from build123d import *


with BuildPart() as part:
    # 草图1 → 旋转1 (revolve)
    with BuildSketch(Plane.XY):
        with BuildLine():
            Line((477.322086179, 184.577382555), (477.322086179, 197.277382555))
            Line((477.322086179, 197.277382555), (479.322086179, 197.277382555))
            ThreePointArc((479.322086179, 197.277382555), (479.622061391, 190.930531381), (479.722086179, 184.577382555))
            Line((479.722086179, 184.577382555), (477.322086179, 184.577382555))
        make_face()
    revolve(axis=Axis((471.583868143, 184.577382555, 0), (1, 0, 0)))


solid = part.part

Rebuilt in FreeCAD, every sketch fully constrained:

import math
import FreeCAD as App
import Part
import Sketcher

V = App.Vector
Q = App.Units.Quantity

doc = App.newDocument("Part")
body = doc.addObject("PartDesign::Body", "Body")

sketch1 = body.newObject("Sketcher::SketchObject", "Sketch")
sketch1.AttachmentSupport = (doc.getObject("XY_Plane"), [""])
sketch1.MapMode = "FlatFace"
sketch1.addGeometry([
    Part.LineSegment(V(477.3, 197.3, 0), V(477.3, 184.6, 0)),
    Part.LineSegment(V(477.3, 184.6, 0), V(479.7, 184.6, 0)),
    Part.ArcOfCircle(Part.Circle(V(277.9, 184.6, 0), V(0, 0, 1), 201.8), math.radians(0), math.radians(3.61)),
    Part.LineSegment(V(479.3, 197.3, 0), V(477.3, 197.3, 0)),
], False)
sketch1.addGeometry(Part.LineSegment(V(277.9, 184.6, 0), V(479.7, 184.6, 0)), True)
sketch1.addConstraint([
    Sketcher.Constraint("Coincident", 0, 2, 1, 1),
    Sketcher.Constraint("Coincident", 1, 2, 2, 1),
    Sketcher.Constraint("Coincident", 2, 2, 3, 1),
    Sketcher.Constraint("Coincident", 3, 2, 0, 1),
    Sketcher.Constraint("Vertical", 0),
    Sketcher.Constraint("Horizontal", 1),
    Sketcher.Constraint("Horizontal", 3),
    Sketcher.Constraint("Horizontal", 4),
    Sketcher.Constraint("Coincident", 4, 1, 2, 3),
    Sketcher.Constraint("Coincident", 4, 2, 1, 2),
    Sketcher.Constraint("DistanceX", 3, 2, 3, 1, Q("2 mm")),
    Sketcher.Constraint("DistanceX", 1, 1, 1, 2, Q("2.4 mm")),
    Sketcher.Constraint("DistanceY", 0, 2, 0, 1, Q("12.7 mm")),
    Sketcher.Constraint("DistanceX", -1, 1, 2, 3, Q("277.909586 mm")),
    Sketcher.Constraint("DistanceY", -1, 1, 2, 3, Q("184.577383 mm")),
])
revolution = body.newObject("PartDesign::Revolution", "Revolution")
revolution.Profile = sketch1
revolution.ReferenceAxis = (sketch1, ["Axis0"])
revolution.Angle = 360

doc.recompute()
